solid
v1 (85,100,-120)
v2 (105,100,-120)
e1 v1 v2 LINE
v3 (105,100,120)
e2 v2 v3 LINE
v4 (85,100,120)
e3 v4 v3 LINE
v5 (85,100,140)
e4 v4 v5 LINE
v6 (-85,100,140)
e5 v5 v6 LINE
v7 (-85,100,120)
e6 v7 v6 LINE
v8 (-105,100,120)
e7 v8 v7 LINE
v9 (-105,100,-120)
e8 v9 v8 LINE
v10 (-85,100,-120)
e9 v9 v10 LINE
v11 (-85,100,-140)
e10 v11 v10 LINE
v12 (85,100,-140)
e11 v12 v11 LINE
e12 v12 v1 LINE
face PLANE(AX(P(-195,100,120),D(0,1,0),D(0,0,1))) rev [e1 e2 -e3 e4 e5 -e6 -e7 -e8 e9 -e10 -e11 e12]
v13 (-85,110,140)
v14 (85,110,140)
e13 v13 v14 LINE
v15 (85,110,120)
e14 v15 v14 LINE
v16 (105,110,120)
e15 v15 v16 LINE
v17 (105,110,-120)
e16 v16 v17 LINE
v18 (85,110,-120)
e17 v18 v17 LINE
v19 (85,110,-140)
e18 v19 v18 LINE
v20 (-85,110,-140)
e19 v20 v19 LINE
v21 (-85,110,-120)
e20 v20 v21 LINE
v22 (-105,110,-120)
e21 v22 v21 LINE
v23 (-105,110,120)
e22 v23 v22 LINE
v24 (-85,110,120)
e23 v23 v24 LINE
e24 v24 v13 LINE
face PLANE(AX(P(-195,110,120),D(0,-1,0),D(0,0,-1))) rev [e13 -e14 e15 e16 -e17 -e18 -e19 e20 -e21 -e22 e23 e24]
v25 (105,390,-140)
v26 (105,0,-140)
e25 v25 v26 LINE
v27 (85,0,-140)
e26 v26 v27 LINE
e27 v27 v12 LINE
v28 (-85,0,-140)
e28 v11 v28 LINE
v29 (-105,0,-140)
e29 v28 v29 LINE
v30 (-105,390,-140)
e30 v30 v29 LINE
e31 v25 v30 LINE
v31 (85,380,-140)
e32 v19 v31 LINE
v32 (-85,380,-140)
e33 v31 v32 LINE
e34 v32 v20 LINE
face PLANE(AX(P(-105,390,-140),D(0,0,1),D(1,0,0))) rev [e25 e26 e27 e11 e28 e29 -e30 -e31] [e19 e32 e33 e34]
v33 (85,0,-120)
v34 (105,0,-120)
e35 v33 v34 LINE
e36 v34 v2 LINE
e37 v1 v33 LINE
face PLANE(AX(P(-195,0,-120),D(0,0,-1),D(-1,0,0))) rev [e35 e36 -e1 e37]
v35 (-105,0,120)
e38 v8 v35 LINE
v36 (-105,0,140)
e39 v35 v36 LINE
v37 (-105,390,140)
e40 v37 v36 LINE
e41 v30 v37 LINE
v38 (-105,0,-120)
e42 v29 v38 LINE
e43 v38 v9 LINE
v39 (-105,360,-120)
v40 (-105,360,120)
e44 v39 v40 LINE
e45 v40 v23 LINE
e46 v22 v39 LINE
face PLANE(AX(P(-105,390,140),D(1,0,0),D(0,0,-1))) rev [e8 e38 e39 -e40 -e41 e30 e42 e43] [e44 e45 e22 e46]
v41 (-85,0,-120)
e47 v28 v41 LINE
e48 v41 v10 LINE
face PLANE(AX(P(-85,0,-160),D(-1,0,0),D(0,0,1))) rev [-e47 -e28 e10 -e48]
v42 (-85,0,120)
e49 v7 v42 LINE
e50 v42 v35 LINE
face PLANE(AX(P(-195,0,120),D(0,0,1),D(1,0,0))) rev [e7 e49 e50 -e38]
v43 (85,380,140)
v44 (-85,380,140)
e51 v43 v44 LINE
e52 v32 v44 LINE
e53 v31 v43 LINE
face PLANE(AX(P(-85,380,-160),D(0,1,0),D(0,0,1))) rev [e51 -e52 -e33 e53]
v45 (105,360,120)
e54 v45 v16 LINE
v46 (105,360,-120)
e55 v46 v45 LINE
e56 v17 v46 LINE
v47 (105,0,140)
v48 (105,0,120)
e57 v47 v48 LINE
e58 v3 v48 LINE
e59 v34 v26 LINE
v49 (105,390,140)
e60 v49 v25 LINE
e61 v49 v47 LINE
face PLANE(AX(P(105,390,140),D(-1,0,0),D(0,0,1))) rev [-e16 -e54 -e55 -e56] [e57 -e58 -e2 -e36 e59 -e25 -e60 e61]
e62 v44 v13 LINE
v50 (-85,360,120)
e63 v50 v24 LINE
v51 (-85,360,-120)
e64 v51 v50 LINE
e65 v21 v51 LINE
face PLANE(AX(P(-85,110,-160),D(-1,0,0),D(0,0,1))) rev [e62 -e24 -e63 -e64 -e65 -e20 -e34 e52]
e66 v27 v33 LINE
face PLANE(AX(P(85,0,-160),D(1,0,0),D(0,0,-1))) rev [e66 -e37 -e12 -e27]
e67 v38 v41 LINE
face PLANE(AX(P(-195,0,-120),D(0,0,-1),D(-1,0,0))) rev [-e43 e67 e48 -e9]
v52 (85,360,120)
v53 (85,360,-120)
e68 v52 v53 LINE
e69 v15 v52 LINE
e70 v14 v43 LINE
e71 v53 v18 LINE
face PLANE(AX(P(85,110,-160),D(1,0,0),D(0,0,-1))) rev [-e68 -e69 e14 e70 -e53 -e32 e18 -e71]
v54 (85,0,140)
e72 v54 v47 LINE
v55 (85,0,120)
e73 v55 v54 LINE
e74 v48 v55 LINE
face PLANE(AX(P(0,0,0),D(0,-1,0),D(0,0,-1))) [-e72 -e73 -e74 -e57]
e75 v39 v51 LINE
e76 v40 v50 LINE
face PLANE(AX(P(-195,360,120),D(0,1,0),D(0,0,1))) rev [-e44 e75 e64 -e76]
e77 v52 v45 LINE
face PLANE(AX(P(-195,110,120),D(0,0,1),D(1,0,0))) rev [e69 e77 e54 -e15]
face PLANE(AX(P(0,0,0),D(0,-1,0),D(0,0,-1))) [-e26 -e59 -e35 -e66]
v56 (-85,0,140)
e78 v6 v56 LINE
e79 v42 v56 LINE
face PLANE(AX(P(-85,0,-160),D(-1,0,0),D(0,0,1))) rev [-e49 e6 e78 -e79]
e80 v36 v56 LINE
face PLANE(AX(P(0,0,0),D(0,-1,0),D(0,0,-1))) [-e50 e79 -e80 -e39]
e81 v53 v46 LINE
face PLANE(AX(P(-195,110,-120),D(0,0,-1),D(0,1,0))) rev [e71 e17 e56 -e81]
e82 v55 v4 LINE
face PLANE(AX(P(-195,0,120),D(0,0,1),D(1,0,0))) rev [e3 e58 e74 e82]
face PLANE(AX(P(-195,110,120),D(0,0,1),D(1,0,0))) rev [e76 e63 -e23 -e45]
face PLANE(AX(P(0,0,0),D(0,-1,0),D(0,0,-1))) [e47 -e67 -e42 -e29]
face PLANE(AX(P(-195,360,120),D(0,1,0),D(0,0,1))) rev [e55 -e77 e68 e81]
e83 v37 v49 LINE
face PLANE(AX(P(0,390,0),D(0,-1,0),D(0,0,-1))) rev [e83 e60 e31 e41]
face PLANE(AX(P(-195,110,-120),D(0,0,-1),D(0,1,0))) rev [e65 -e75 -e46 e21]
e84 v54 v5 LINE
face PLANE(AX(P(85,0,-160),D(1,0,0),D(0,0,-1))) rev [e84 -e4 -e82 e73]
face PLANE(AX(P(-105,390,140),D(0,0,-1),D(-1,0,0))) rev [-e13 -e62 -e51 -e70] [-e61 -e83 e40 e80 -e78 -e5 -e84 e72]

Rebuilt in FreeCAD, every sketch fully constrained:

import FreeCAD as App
import Part
import Sketcher
from FreeCAD import Vector
Q = App.Units.Quantity

doc = App.newDocument("Part")
body = doc.addObject("PartDesign::Body", "Body")

# Sketch on XZ plane
sketch1 = doc.addObject("Sketcher::SketchObject", "Sketch")
body.addObject(sketch1)
sketch1.AttachmentSupport = (doc.XZ_Plane, [""])
sketch1.MapMode = "FlatFace"
sketch1.addGeometry([
    Part.LineSegment(Vector(-105, -140, 0), Vector(-105, 140, 0)),
    Part.LineSegment(Vector(-105, 140, 0), Vector(105, 140, 0)),
    Part.LineSegment(Vector(105, 140, 0), Vector(105, -140, 0)),
    Part.LineSegment(Vector(105, -140, 0), Vector(-105, -140, 0)),
], False)
sketch1.addConstraint([
    Sketcher.Constraint("Coincident", 0, 2, 1, 1),
    Sketcher.Constraint("Coincident", 1, 2, 2, 1),
    Sketcher.Constraint("Coincident", 2, 2, 3, 1),
    Sketcher.Constraint("Coincident", 3, 2, 0, 1),
    Sketcher.Constraint("Vertical", 0),
    Sketcher.Constraint("Horizontal", 1),
    Sketcher.Constraint("Vertical", 2),
    Sketcher.Constraint("Horizontal", 3),
    Sketcher.Constraint("Symmetric", 0, 2, 2, 2, -1, 1),
    Sketcher.Constraint("DistanceX", 1, 1, 1, 2, Q("210 mm")),
    Sketcher.Constraint("DistanceY", 0, 1, 0, 2, Q("280 mm")),
])
pad1 = doc.addObject("PartDesign::Pad", "Pad")
body.addObject(pad1)
pad1.Profile = sketch1
pad1.Length = 390
pad1.Reversed = True

# Sketch on YZ plane
sketch2 = doc.addObject("Sketcher::SketchObject", "Sketch001")
body.addObject(sketch2)
sketch2.AttachmentSupport = (doc.YZ_Plane, [""])
sketch2.MapMode = "FlatFace"
sketch2.AttachmentOffset = App.Placement(Vector(0, 0, 105), App.Rotation())
sketch2.addGeometry([
    Part.LineSegment(Vector(100, 120, 0), Vector(0, 120, 0)),  # 0
    Part.LineSegment(Vector(0, 120, 0), Vector(0, -120, 0)),  # 1
    Part.LineSegment(Vector(0, -120, 0), Vector(100, -120, 0)),  # 2
    Part.LineSegment(Vector(100, -120, 0), Vector(100, 120, 0)),  # 3
    Part.LineSegment(Vector(360, 120, 0), Vector(110, 120, 0)),  # 4
    Part.LineSegment(Vector(110, 120, 0), Vector(110, -120, 0)),  # 5
    Part.LineSegment(Vector(110, -120, 0), Vector(360, -120, 0)),  # 6
    Part.LineSegment(Vector(360, -120, 0), Vector(360, 120, 0)),  # 7
], False)
sketch2.addConstraint([
    Sketcher.Constraint("Coincident", 0, 2, 1, 1),
    Sketcher.Constraint("Coincident", 1, 2, 2, 1),
    Sketcher.Constraint("Coincident", 2, 2, 3, 1),
    Sketcher.Constraint("Coincident", 3, 2, 0, 1),
    Sketcher.Constraint("Coincident", 4, 2, 5, 1),
    Sketcher.Constraint("Coincident", 5, 2, 6, 1),
    Sketcher.Constraint("Coincident", 6, 2, 7, 1),
    Sketcher.Constraint("Coincident", 7, 2, 4, 1),
    Sketcher.Constraint("Horizontal", 0),
    Sketcher.Constraint("Vertical", 1),
    Sketcher.Constraint("Horizontal", 2),
    Sketcher.Constraint("Vertical", 3),
    Sketcher.Constraint("Horizontal", 4),
    Sketcher.Constraint("Vertical", 5),
    Sketcher.Constraint("Horizontal", 6),
    Sketcher.Constraint("Vertical", 7),
    Sketcher.Constraint("Symmetric", 0, 2, 1, 2, -1, 1),
    Sketcher.Constraint("Horizontal", 3, 2, 4, 2),
    Sketcher.Constraint("Horizontal", 2, 2, 5, 2),
    Sketcher.Constraint("DistanceX", 0, 2, 0, 1, Q("100 mm")),
    Sketcher.Constraint("DistanceX", 4, 2, 4, 1, Q("250 mm")),
    Sketcher.Constraint("DistanceY", 1, 2, 1, 1, Q("240 mm")),
    Sketcher.Constraint("DistanceX", -1, 1, 4, 2, Q("110 mm")),
])
pocket1 = doc.addObject("PartDesign::Pocket", "Pocket")
body.addObject(pocket1)
pocket1.Profile = sketch2
pocket1.Length = 300

# Sketch on XY plane
sketch3 = doc.addObject("Sketcher::SketchObject", "Sketch002")
body.addObject(sketch3)
sketch3.AttachmentSupport = (doc.XY_Plane, [""])
sketch3.MapMode = "FlatFace"
sketch3.AttachmentOffset = App.Placement(Vector(0, 0, 140), App.Rotation())
sketch3.addGeometry([
    Part.LineSegment(Vector(-85, 100, 0), Vector(-85, 0, 0)),  # 0
    Part.LineSegment(Vector(-85, 0, 0), Vector(85, 0, 0)),  # 1
    Part.LineSegment(Vector(85, 0, 0), Vector(85, 100, 0)),  # 2
    Part.LineSegment(Vector(85, 100, 0), Vector(-85, 100, 0)),  # 3
    Part.LineSegment(Vector(-85, 380, 0), Vector(-85, 110, 0)),  # 4
    Part.LineSegment(Vector(-85, 110, 0), Vector(85, 110, 0)),  # 5
    Part.LineSegment(Vector(85, 110, 0), Vector(85, 380, 0)),  # 6
    Part.LineSegment(Vector(85, 380, 0), Vector(-85, 380, 0)),  # 7
], False)
sketch3.addConstraint([
    Sketcher.Constraint("Coincident", 0, 2, 1, 1),
    Sketcher.Constraint("Coincident", 1, 2, 2, 1),
    Sketcher.Constraint("Coincident", 2, 2, 3, 1),
    Sketcher.Constraint("Coincident", 3, 2, 0, 1),
    Sketcher.Constraint("Coincident", 4, 2, 5, 1),
    Sketcher.Constraint("Coincident", 5, 2, 6, 1),
    Sketcher.Constraint("Coincident", 6, 2, 7, 1),
    Sketcher.Constraint("Coincident", 7, 2, 4, 1),
    Sketcher.Constraint("Vertical", 0),
    Sketcher.Constraint("Horizontal", 1),
    Sketcher.Constraint("Vertical", 2),
    Sketcher.Constraint("Horizontal", 3),
    Sketcher.Constraint("Vertical", 4),
    Sketcher.Constraint("Horizontal", 5),
    Sketcher.Constraint("Vertical", 6),
    Sketcher.Constraint("Horizontal", 7),
    Sketcher.Constraint("Symmetric", 0, 2, 1, 2, -1, 1),
    Sketcher.Constraint("Vertical", 3, 2, 4, 2),
    Sketcher.Constraint("Vertical", 2, 2, 5, 2),
    Sketcher.Constraint("DistanceX", 1, 1, 1, 2, Q("170 mm")),
    Sketcher.Constraint("DistanceY", 0, 2, 0, 1, Q("100 mm")),
    Sketcher.Constraint("DistanceY", 4, 2, 4, 1, Q("270 mm")),
    Sketcher.Constraint("DistanceY", -1, 1, 4, 2, Q("110 mm")),
])
pocket2 = doc.addObject("PartDesign::Pocket", "Pocket001")
body.addObject(pocket2)
pocket2.Profile = sketch3
pocket2.Length = 300

doc.recompute()
